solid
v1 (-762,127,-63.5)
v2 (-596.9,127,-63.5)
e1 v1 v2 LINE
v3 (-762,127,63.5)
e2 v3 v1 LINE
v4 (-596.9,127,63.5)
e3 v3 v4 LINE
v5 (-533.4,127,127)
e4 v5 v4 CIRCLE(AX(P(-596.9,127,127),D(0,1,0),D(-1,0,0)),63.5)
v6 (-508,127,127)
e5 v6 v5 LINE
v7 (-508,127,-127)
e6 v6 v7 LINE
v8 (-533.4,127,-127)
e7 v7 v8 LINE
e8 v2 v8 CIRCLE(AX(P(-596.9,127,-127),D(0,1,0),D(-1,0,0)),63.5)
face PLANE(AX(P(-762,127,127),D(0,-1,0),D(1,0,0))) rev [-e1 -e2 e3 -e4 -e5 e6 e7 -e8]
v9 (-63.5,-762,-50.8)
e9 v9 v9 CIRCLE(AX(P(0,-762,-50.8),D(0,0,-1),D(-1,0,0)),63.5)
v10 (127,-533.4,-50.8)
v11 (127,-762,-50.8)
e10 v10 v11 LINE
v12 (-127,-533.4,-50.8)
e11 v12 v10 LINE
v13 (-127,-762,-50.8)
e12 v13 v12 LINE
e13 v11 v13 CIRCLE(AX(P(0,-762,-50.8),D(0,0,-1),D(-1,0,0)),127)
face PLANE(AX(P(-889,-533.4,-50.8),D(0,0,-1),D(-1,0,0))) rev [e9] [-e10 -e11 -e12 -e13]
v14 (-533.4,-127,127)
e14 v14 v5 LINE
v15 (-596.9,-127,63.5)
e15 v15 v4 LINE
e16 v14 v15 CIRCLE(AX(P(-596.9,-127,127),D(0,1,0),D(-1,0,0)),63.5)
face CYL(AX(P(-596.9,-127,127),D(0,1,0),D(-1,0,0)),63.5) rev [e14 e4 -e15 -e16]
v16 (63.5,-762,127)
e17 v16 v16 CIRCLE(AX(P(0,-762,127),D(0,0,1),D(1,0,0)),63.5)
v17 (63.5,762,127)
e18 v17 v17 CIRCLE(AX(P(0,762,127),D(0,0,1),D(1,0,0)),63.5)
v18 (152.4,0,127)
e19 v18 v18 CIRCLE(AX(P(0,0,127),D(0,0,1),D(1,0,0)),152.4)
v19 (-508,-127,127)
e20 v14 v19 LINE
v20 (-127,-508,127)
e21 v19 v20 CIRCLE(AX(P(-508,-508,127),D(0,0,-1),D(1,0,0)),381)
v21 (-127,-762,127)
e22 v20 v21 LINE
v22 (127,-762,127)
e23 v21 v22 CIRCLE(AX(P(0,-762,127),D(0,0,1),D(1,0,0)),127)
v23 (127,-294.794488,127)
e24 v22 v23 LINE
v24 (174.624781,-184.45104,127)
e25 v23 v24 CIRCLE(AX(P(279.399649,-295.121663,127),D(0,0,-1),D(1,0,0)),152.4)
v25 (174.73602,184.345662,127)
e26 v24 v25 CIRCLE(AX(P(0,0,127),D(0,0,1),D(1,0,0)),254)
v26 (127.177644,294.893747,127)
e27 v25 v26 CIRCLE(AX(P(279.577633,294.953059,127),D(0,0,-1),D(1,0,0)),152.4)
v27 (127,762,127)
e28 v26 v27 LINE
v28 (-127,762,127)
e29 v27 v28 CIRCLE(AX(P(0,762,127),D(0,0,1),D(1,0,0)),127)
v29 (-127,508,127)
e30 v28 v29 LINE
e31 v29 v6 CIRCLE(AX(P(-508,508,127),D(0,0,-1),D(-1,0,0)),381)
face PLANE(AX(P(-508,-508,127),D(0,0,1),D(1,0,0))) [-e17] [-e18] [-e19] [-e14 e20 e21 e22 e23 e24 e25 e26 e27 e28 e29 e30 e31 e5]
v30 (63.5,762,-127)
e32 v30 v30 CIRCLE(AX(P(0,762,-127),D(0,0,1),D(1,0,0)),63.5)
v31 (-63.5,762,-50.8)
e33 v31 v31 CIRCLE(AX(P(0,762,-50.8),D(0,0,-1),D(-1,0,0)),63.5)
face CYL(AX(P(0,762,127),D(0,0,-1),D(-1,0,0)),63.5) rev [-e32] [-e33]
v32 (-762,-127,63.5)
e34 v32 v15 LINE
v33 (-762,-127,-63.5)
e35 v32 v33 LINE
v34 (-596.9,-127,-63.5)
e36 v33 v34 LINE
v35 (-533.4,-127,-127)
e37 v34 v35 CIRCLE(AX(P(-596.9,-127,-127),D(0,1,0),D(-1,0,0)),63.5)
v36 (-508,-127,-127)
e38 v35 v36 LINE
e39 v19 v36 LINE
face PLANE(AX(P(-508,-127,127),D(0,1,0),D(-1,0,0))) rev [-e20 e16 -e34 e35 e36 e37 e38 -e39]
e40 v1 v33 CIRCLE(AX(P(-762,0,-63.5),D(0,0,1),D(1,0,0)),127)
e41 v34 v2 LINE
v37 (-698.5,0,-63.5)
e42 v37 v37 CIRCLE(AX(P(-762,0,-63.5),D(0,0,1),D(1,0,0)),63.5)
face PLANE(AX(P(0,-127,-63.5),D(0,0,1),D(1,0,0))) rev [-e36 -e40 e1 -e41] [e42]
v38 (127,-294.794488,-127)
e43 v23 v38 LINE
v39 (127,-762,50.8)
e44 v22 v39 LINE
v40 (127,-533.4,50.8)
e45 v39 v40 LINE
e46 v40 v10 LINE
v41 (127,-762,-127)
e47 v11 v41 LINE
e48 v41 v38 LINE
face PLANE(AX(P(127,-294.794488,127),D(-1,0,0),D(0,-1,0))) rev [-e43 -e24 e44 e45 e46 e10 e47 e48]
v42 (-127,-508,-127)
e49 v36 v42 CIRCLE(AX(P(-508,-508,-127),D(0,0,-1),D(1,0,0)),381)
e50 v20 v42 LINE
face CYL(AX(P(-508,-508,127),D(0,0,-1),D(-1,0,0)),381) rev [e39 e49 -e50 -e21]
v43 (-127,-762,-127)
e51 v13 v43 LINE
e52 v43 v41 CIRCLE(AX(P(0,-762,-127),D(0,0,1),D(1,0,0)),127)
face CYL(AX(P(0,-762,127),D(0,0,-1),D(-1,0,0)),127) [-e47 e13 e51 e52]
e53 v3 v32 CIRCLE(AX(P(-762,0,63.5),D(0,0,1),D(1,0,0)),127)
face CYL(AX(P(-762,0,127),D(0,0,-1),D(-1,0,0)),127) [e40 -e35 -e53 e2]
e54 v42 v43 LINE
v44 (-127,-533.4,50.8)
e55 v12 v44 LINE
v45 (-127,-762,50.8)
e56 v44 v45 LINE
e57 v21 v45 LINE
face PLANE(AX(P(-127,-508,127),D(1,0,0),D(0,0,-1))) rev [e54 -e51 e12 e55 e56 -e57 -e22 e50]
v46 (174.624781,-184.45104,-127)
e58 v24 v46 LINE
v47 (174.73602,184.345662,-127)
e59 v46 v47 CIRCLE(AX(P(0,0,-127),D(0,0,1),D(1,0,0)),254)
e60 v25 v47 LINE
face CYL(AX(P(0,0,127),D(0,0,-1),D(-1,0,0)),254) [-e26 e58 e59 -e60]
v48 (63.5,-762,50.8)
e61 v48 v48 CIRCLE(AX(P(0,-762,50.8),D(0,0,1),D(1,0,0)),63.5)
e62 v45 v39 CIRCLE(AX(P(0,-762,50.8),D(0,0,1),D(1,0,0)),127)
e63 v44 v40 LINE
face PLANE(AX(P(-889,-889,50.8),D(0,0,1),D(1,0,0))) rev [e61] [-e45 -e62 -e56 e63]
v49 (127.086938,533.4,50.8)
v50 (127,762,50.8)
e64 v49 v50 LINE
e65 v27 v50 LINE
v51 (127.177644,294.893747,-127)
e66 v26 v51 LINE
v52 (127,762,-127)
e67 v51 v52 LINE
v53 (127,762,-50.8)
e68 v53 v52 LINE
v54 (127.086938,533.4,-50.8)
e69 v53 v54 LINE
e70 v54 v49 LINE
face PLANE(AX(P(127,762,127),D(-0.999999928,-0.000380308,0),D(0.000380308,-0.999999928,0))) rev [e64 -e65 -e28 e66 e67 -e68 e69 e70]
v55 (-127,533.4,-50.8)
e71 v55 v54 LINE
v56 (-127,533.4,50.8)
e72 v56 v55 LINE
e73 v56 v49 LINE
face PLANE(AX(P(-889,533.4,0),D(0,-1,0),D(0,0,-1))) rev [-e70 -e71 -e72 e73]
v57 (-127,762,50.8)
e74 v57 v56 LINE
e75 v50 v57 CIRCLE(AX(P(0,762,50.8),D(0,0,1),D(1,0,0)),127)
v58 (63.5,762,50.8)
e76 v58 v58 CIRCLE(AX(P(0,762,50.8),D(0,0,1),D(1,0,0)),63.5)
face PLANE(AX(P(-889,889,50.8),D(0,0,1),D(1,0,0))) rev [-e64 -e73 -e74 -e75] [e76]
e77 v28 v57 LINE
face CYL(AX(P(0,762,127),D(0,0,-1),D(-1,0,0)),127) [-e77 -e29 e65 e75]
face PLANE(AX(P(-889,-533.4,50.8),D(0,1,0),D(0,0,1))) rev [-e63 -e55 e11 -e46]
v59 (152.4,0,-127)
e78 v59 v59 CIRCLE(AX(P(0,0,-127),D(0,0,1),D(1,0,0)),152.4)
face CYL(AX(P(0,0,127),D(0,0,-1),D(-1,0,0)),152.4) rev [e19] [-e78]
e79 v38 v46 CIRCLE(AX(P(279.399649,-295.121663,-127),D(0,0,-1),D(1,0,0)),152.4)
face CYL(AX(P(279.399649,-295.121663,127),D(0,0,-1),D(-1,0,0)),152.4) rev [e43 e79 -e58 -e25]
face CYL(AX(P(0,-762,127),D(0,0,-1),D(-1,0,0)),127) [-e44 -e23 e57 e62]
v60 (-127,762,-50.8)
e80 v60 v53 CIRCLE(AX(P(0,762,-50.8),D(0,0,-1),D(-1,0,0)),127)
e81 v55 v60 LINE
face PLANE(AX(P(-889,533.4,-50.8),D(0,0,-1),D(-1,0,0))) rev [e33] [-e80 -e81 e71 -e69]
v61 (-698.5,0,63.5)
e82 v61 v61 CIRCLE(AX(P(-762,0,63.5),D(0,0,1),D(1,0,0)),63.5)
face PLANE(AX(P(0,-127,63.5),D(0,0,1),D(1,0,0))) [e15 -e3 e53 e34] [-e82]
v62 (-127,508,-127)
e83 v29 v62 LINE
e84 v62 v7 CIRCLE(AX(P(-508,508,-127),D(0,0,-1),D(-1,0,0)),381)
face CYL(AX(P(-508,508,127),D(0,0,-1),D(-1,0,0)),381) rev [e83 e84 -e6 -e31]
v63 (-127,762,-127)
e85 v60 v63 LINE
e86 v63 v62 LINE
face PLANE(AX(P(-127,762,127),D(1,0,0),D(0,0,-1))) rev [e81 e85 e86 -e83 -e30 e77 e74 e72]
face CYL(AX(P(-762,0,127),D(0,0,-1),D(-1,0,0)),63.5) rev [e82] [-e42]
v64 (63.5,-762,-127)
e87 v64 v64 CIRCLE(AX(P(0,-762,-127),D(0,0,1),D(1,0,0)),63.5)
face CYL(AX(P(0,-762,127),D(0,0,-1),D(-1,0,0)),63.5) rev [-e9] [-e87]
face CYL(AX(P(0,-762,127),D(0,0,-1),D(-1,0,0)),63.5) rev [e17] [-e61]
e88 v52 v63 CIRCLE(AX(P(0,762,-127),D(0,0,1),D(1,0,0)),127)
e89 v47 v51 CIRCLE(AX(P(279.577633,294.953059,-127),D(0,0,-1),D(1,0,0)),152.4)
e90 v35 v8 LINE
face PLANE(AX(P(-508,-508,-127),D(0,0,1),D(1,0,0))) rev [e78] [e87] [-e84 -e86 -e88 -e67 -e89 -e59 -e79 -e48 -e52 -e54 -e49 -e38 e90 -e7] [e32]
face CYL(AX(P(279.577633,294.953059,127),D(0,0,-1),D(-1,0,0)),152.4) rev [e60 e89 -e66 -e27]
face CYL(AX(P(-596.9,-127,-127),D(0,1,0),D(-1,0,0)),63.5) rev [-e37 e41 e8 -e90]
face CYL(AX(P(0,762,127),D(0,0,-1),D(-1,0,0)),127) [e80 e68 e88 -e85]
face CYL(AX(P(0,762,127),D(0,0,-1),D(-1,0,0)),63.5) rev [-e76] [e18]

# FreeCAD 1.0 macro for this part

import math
import FreeCAD as App
import Part
import Sketcher

V = App.Vector
Q = App.Units.Quantity


def add_polygon(sketch, points):
    """Adds a closed chain of lines whose ends are joined by coincident constraints."""
    first, n = sketch.GeometryCount, len(points)
    for a, b in zip(points, points[1:] + points[:1]):
        sketch.addGeometry(Part.LineSegment(App.Vector(*a, 0), App.Vector(*b, 0)), False)
    for i in range(n):
        sketch.addConstraint(Sketcher.Constraint("Coincident", first + i, 2, first + (i + 1) % n, 1))

doc = App.newDocument("Part")
body = doc.addObject("PartDesign::Body", "Body")

# Sketch on XY plane
sketch1 = doc.addObject("Sketcher::SketchObject", "Sketch")
body.addObject(sketch1)
sketch1.AttachmentSupport = (doc.XY_Plane, [""])
sketch1.MapMode = "FlatFace"
sketch1.addGeometry([
    Part.LineSegment(V(127, -762, 0), V(127, -295, 0)),  # 0
    Part.ArcOfCircle(Part.Circle(V(279, -295, 0), V(0, 0, 1), 152), math.radians(133), math.radians(180)),  # 1
    Part.ArcOfCircle(Part.Circle(V(0, 0, 0), V(0, 0, 1), 254), math.radians(-47), math.radians(47)),  # 2
    Part.ArcOfCircle(Part.Circle(V(280, 295, 0), V(0, 0, 1), 152), math.radians(-180), math.radians(-133)),  # 3
    Part.LineSegment(V(127, 295, 0), V(127, 762, 0)),  # 4
    Part.ArcOfCircle(Part.Circle(V(0, 762, 0), V(0, 0, 1), 127), math.radians(0), math.radians(180)),  # 5
    Part.LineSegment(V(-127, 762, 0), V(-127, 508, 0)),  # 6
    Part.ArcOfCircle(Part.Circle(V(-508, 508, 0), V(0, 0, 1), 381), math.radians(-90), math.radians(0)),  # 7
    Part.LineSegment(V(-508, 127, 0), V(-762, 127, 0)),  # 8
    Part.ArcOfCircle(Part.Circle(V(-762, 0, 0), V(0, 0, 1), 127), math.radians(90), math.radians(270)),  # 9
    Part.LineSegment(V(-762, -127, 0), V(-508, -127, 0)),  # 10
    Part.ArcOfCircle(Part.Circle(V(-508, -508, 0), V(0, 0, 1), 381), math.radians(0), math.radians(90)),  # 11
    Part.LineSegment(V(-127, -508, 0), V(-127, -762, 0)),  # 12
    Part.ArcOfCircle(Part.Circle(V(0, -762, 0), V(0, 0, 1), 127), math.radians(180), math.radians(360)),  # 13
    Part.Circle(V(0, -762, 0), V(0, 0, 1), 64),  # 14
    Part.Circle(V(0, 0, 0), V(0, 0, 1), 152),  # 15
    Part.Circle(V(0, 762, 0), V(0, 0, 1), 64),  # 16
    Part.Circle(V(-762, 0, 0), V(0, 0, 1), 64),  # 17
], False)
sketch1.addConstraint([
    Sketcher.Constraint("Coincident", 0, 2, 1, 2),
    Sketcher.Constraint("Tangent", 1, 1, 2, 1),
    Sketcher.Constraint("Tangent", 2, 2, 3, 2),
    Sketcher.Constraint("Coincident", 3, 1, 4, 1),
    Sketcher.Constraint("Coincident", 4, 2, 5, 1),
    Sketcher.Constraint("Tangent", 5, 2, 6, 1),
    Sketcher.Constraint("Tangent", 6, 2, 7, 2),
    Sketcher.Constraint("Tangent", 7, 1, 8, 1),
    Sketcher.Constraint("Tangent", 8, 2, 9, 1),
    Sketcher.Constraint("Tangent", 9, 2, 10, 1),
    Sketcher.Constraint("Tangent", 10, 2, 11, 2),
    Sketcher.Constraint("Tangent", 11, 1, 12, 1),
    Sketcher.Constraint("Tangent", 12, 2, 13, 1),
    Sketcher.Constraint("Tangent", 13, 2, 0, 1),
    Sketcher.Constraint("Vertical", 0),
    Sketcher.Constraint("Vertical", 6),
    Sketcher.Constraint("Horizontal", 8),
    Sketcher.Constraint("Horizontal", 10),
    Sketcher.Constraint("Vertical", 12),
    Sketcher.Constraint("Coincident", 2, 3, -1, 1),
    Sketcher.Constraint("Coincident", 15, 3, -1, 1),
    Sketcher.Constraint("Coincident", 14, 3, 13, 3),
    Sketcher.Constraint("Coincident", 16, 3, 5, 3),
    Sketcher.Constraint("Coincident", 17, 3, 9, 3),
    Sketcher.Constraint("Equal", 1, 3),
    Sketcher.Constraint("Equal", 5, 9),
    Sketcher.Constraint("Equal", 7, 11),
    Sketcher.Constraint("Equal", 9, 13),
    Sketcher.Constraint("Equal", 3, 15),
    Sketcher.Constraint("Equal", 14, 16),
    Sketcher.Constraint("Equal", 16, 17),
    Sketcher.Constraint("Symmetric", 5, 3, 13, 3, -1, 1),
    Sketcher.Constraint("Symmetric", 4, 2, 5, 2, -2),
    Sketcher.Constraint("PointOnObject", 9, 3, -1),
    Sketcher.Constraint("Equal", 10, 6),
    Sketcher.Constraint("Diameter", 14, Q("5 in")),
    Sketcher.Constraint("Diameter", 15, Q("12 in")),
    Sketcher.Constraint("Radius", 2, Q("10 in")),
    Sketcher.Constraint("Radius", 5, Q("5 in")),
    Sketcher.Constraint("Radius", 7, Q("15 in")),
    Sketcher.Constraint("DistanceX", 8, 2, 8, 1, Q("10 in")),
    Sketcher.Constraint("DistanceY", 0, 1, 0, 2, 467.205512),
    Sketcher.Constraint("DistanceY", 1, 1, 3, 3, 479.404099),
    Sketcher.Constraint("Distance", 4, 467.106287),
])
pad1 = doc.addObject("PartDesign::Pad", "Pad")
body.addObject(pad1)
pad1.Profile = sketch1
pad1.Length = Q("10 in")
pad1.Midplane = True

# Sketch on YZ plane
sketch2 = doc.addObject("Sketcher::SketchObject", "Sketch001")
body.addObject(sketch2)
sketch2.AttachmentSupport = (doc.YZ_Plane, [""])
sketch2.MapMode = "FlatFace"
add_polygon(sketch2, [(889, -51), (889, 51), (533, 51), (533, -51)])  # lines 0-3
add_polygon(sketch2, [(-533, 51), (-889, 51), (-889, -51), (-533, -51)])  # lines 4-7
sketch2.addConstraint([
    Sketcher.Constraint("Vertical", 0),
    Sketcher.Constraint("Horizontal", 1),
    Sketcher.Constraint("Vertical", 2),
    Sketcher.Constraint("Horizontal", 3),
    Sketcher.Constraint("Horizontal", 4),
    Sketcher.Constraint("Vertical", 5),
    Sketcher.Constraint("Horizontal", 6),
    Sketcher.Constraint("Vertical", 7),
    Sketcher.Constraint("Symmetric", 3, 2, 4, 2, -1, 1),
    Sketcher.Constraint("Symmetric", 1, 2, 6, 2, -1, 1),
    Sketcher.Constraint("Horizontal", 1, 2, 4, 2),
    Sketcher.Constraint("DistanceX", 1, 2, 1, 1, Q("14 in")),
    Sketcher.Constraint("DistanceY", 0, 1, 0, 2, Q("4 in")),
    Sketcher.Constraint("DistanceX", -1, 1, 0, 2, Q("35 in")),
])
pocket1 = doc.addObject("PartDesign::Pocket", "Pocket")
body.addObject(pocket1)
pocket1.Profile = sketch2
pocket1.Type = "ThroughAll"
pocket1.Midplane = True

# Sketch on XZ plane
sketch3 = doc.addObject("Sketcher::SketchObject", "Sketch002")
body.addObject(sketch3)
sketch3.AttachmentSupport = (doc.XZ_Plane, [""])
sketch3.MapMode = "FlatFace"
sketch3.AttachmentOffset = App.Placement(V(0, 0, -5 * 25.4), App.Rotation())
sketch3.addGeometry([
    Part.ArcOfCircle(Part.Circle(V(-597, -127, 0), V(0, 0, 1), 64), math.radians(0), math.radians(90)),  # 0
    Part.LineSegment(V(-533, -127, 0), V(-533, -247, 0)),  # 1
    Part.LineSegment(V(-533, -247, 0), V(-889, -247, 0)),  # 2
    Part.LineSegment(V(-889, -247, 0), V(-889, -64, 0)),  # 3
    Part.LineSegment(V(-889, -64, 0), V(-597, -64, 0)),  # 4
    Part.LineSegment(V(-889, 64, 0), V(-889, 178, 0)),  # 5
    Part.LineSegment(V(-889, 178, 0), V(-533, 178, 0)),  # 6
    Part.LineSegment(V(-533, 178, 0), V(-533, 127, 0)),  # 7
    Part.ArcOfCircle(Part.Circle(V(-597, 127, 0), V(0, 0, 1), 64), math.radians(-90), math.radians(0)),  # 8
    Part.LineSegment(V(-597, 64, 0), V(-889, 64, 0)),  # 9
], False)
sketch3.addConstraint([
    Sketcher.Constraint("Tangent", 0, 1, 1, 1),
    Sketcher.Constraint("Coincident", 1, 2, 2, 1),
    Sketcher.Constraint("Coincident", 2, 2, 3, 1),
    Sketcher.Constraint("Coincident", 3, 2, 4, 1),
    Sketcher.Constraint("Tangent", 4, 2, 0, 2),
    Sketcher.Constraint("Coincident", 5, 2, 6, 1),
    Sketcher.Constraint("Coincident", 6, 2, 7, 1),
    Sketcher.Constraint("Tangent", 7, 2, 8, 2),
    Sketcher.Constraint("Tangent", 8, 1, 9, 1),
    Sketcher.Constraint("Coincident", 9, 2, 5, 1),
    Sketcher.Constraint("Vertical", 1),
    Sketcher.Constraint("Horizontal", 2),
    Sketcher.Constraint("Vertical", 3),
    Sketcher.Constraint("Horizontal", 4),
    Sketcher.Constraint("Vertical", 5),
    Sketcher.Constraint("Horizontal", 6),
    Sketcher.Constraint("Vertical", 7),
    Sketcher.Constraint("Horizontal", 9),
    Sketcher.Constraint("Equal", 0, 8),
    Sketcher.Constraint("Symmetric", 0, 3, 8, 3, -1),
    Sketcher.Constraint("Vertical", 3, 2, 5, 2),
    Sketcher.Constraint("Radius", 0, Q("2.5 in")),
    Sketcher.Constraint("DistanceX", 2, 2, 2, 1, Q("14 in")),
    Sketcher.Constraint("DistanceY", 0, 3, -1, 1, Q("5 in")),
    Sketcher.Constraint("DistanceX", 0, 1, -1, 1, Q("21 in")),
    Sketcher.Constraint("DistanceY", 1, 2, 1, 1, 120.03412),
    Sketcher.Constraint("DistanceY", 5, 1, 5, 2, 114.864595),
])
pocket2 = doc.addObject("PartDesign::Pocket", "Pocket001")
body.addObject(pocket2)
pocket2.Profile = sketch3
pocket2.Length = Q("10 in")
pocket2.Reversed = True

doc.recompute()
